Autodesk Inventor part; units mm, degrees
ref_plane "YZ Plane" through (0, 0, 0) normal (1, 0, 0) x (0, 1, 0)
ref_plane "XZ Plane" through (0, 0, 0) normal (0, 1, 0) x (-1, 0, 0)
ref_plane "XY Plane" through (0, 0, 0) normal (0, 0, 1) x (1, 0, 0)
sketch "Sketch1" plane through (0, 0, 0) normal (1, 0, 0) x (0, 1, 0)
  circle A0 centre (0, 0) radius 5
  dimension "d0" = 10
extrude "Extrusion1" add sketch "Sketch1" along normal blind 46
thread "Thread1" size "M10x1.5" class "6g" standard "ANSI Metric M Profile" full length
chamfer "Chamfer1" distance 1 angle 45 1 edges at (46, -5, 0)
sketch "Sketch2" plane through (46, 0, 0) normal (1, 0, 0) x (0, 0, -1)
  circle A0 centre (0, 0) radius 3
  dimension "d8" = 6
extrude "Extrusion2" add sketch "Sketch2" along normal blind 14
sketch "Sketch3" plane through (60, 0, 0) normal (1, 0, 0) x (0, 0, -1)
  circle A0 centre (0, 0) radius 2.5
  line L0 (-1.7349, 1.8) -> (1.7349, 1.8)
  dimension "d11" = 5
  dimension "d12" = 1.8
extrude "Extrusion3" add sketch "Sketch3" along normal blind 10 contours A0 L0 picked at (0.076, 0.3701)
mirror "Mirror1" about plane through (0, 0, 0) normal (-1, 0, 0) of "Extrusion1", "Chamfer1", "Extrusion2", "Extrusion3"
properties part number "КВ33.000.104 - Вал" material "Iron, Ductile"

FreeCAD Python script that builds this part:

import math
import FreeCAD as App
import Part
import Sketcher
Q = App.Units.Quantity


def edges_at(feature, points):
    """Names of the edges that pass closest to the given points."""
    edges = feature.Shape.Edges
    near = lambda p: min(range(len(edges)), key=lambda i: edges[i].distToShape(Part.Vertex(*p))[0])
    return sorted({f"Edge{near(p) + 1}" for p in points})

doc = App.newDocument("Part")
params = doc.addObject("Spreadsheet::Sheet", "Params")
for row, (alias, value) in enumerate([
    ("sketch1_diameter", "10 mm"),
    ("pad1_length", "46 mm"),
    ("chamfer_size", "1 mm"),
    ("sketch2_diameter", "6 mm"),
    ("pad2_length", "14 mm"),
    ("sketch3_radius", "2.5 mm"),
    ("pad3_length", "10 mm"),
], start=1):
    params.set(f"A{row}", alias)
    params.set(f"B{row}", "=" + value)
    params.setAlias(f"B{row}", alias)

body = doc.addObject("PartDesign::Body", "Body")

sketch1 = body.newObject("Sketcher::SketchObject", "Sketch")
sketch1.AttachmentSupport = (doc.getObject("YZ_Plane"), [""])
sketch1.MapMode = "FlatFace"
sketch1.addGeometry(Part.Circle(App.Vector(0, 0, 0), App.Vector(0, 0, 1), 5), False)
sketch1.addConstraint([
    Sketcher.Constraint("Coincident", 0, 3, -1, 1),
    Sketcher.Constraint("Diameter", 0, Q("10 mm")),
])
sketch1.setExpression("Constraints[1]", "Params.sketch1_diameter")
pad1 = body.newObject("PartDesign::Pad", "Pad")
pad1.Profile = sketch1
pad1.setExpression("Length", "Params.pad1_length")
doc.recompute()

chamfer = body.newObject("PartDesign::Chamfer", "Chamfer")
chamfer.Base = (pad1, edges_at(pad1, [(46, -5, 0)]))
chamfer.setExpression("Size", "Params.chamfer_size")

sketch2 = body.newObject("Sketcher::SketchObject", "Sketch001")
sketch2.AttachmentSupport = (doc.getObject("YZ_Plane"), [""])
sketch2.MapMode = "FlatFace"
sketch2.AttachmentOffset = App.Placement(App.Vector(0, 0, 46), App.Rotation())
sketch2.addGeometry(Part.Circle(App.Vector(0, 0, 0), App.Vector(0, 0, 1), 3), False)
sketch2.addConstraint([
    Sketcher.Constraint("Coincident", 0, 3, -1, 1),
    Sketcher.Constraint("Diameter", 0, Q("6 mm")),
])
sketch2.setExpression("Constraints[1]", "Params.sketch2_diameter")
pad2 = body.newObject("PartDesign::Pad", "Pad001")
pad2.Profile = sketch2
pad2.setExpression("Length", "Params.pad2_length")

sketch3 = body.newObject("Sketcher::SketchObject", "Sketch002")
sketch3.AttachmentSupport = (doc.getObject("YZ_Plane"), [""])
sketch3.MapMode = "FlatFace"
sketch3.AttachmentOffset = App.Placement(App.Vector(0, 0, 60), App.Rotation())
sketch3.addGeometry([
    Part.ArcOfCircle(Part.Circle(App.Vector(0, 0, 0), App.Vector(0, 0, 1), 2.5), math.radians(43.944939), math.radians(316.055061)),
    Part.LineSegment(App.Vector(1.8, 1.7349, 0), App.Vector(1.8, -1.7349, 0)),
], False)
sketch3.addConstraint([
    Sketcher.Constraint("Coincident", 0, 1, 1, 1),
    Sketcher.Constraint("Coincident", 1, 2, 0, 2),
    Sketcher.Constraint("Vertical", 1),
    Sketcher.Constraint("Coincident", 0, 3, -1, 1),
    Sketcher.Constraint("Radius", 0, Q("2.5 mm")),
    Sketcher.Constraint("DistanceX", -1, 1, 0, 1, Q("1.8 mm")),
])
sketch3.setExpression("Constraints[4]", "Params.sketch3_radius")
pad3 = body.newObject("PartDesign::Pad", "Pad002")
pad3.Profile = sketch3
pad3.setExpression("Length", "Params.pad3_length")
doc.recompute()

mirrored = body.newObject("PartDesign::Mirrored", "Mirrored")
mirrored.Originals = [pad1, chamfer, pad2, pad3]
mirrored.MirrorPlane = (doc.getObject("YZ_Plane"), [""])
body.Tip = mirrored

doc.recompute()
